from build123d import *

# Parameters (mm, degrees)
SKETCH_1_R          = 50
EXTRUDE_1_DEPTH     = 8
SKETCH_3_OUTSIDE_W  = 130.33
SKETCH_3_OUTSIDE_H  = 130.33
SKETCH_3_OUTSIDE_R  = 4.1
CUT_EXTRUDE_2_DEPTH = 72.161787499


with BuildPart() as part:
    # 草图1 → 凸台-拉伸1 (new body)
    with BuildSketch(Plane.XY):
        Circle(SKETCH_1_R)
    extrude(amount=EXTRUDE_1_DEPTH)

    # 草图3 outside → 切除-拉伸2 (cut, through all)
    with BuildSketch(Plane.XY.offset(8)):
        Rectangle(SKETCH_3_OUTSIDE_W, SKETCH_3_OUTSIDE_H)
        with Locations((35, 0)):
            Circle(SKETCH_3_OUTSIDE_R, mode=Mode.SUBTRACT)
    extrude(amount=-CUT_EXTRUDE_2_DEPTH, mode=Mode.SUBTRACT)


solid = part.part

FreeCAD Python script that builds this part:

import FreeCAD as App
import Part
import Sketcher

V = App.Vector


def add_polygon(sketch, points):
    """Adds a closed chain of lines whose ends are joined by coincident constraints."""
    first, n = sketch.GeometryCount, len(points)
    for a, b in zip(points, points[1:] + points[:1]):
        sketch.addGeometry(Part.LineSegment(App.Vector(*a, 0), App.Vector(*b, 0)), False)
    for i in range(n):
        sketch.addConstraint(Sketcher.Constraint("Coincident", first + i, 2, first + (i + 1) % n, 1))

doc = App.newDocument("Part")
body = doc.addObject("PartDesign::Body", "Body")

# Sketch on XY plane
sketch1 = body.newObject("Sketcher::SketchObject", "Sketch")
sketch1.AttachmentSupport = (doc.getObject("XY_Plane"), [""])
sketch1.MapMode = "FlatFace"
sketch1.addGeometry(Part.Circle(V(0, 0, 0), V(0, 0, 1), 50), False)
sketch1.addConstraint([
    Sketcher.Constraint("Coincident", 0, 3, -1, 1),
    Sketcher.Constraint("Diameter", 0, 100.0),
])
pad1 = body.newObject("PartDesign::Pad", "Pad")
pad1.Profile = sketch1
pad1.Length = 8

# Sketch on XY plane
sketch2 = body.newObject("Sketcher::SketchObject", "Sketch001")
sketch2.AttachmentSupport = (doc.getObject("XY_Plane"), [""])
sketch2.MapMode = "FlatFace"
sketch2.AttachmentOffset = App.Placement(V(0, 0, 8), App.Rotation())
add_polygon(sketch2, [(-65.2, 65.2), (-65.2, -65.2), (65.2, -65.2), (65.2, 65.2)])  # lines 0-3
sketch2.addGeometry(Part.Circle(V(35, 0, 0), V(0, 0, 1), 4.1), False)  # 4
sketch2.addConstraint([
    Sketcher.Constraint("Vertical", 0),
    Sketcher.Constraint("Horizontal", 1),
    Sketcher.Constraint("Vertical", 2),
    Sketcher.Constraint("Horizontal", 3),
    Sketcher.Constraint("Symmetric", 0, 2, 2, 2, -1, 1),
    Sketcher.Constraint("PointOnObject", 4, 3, -1),
    Sketcher.Constraint("Equal", 3, 0),
    Sketcher.Constraint("Diameter", 4, 8.2),
    Sketcher.Constraint("DistanceX", -1, 1, 4, 3, 35.0),
    Sketcher.Constraint("DistanceX", 1, 1, 1, 2, 130.33),
])
pocket1 = body.newObject("PartDesign::Pocket", "Pocket")
pocket1.Profile = sketch2
pocket1.Type = "ThroughAll"

doc.recompute()
